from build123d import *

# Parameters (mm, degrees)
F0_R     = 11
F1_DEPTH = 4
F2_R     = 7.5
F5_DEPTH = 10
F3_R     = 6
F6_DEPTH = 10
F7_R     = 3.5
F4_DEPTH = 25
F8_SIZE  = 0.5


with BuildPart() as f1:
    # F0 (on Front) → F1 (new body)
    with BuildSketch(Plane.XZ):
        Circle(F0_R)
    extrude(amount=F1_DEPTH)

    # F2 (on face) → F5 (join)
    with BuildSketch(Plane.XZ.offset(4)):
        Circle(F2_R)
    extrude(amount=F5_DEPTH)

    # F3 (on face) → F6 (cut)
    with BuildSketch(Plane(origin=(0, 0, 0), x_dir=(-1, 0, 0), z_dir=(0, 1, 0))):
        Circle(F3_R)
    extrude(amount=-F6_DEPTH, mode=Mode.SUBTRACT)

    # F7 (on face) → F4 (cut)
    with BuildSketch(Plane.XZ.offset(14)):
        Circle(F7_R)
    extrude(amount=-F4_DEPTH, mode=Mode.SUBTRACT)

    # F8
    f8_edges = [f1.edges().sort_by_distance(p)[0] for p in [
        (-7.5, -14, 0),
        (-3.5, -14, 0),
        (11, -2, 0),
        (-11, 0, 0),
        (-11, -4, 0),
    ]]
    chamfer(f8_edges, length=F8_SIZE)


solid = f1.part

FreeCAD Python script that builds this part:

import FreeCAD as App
import Part
import Sketcher

V = App.Vector


def edges_at(feature, points):
    """Names of the edges that pass closest to the given points."""
    edges = feature.Shape.Edges
    near = lambda p: min(range(len(edges)), key=lambda i: edges[i].distToShape(Part.Vertex(*p))[0])
    return sorted({f"Edge{near(p) + 1}" for p in points})

doc = App.newDocument("Part")
body = doc.addObject("PartDesign::Body", "Body")

sketch1 = body.newObject("Sketcher::SketchObject", "Sketch")
sketch1.AttachmentSupport = (doc.getObject("XZ_Plane"), [""])
sketch1.MapMode = "FlatFace"
sketch1.addGeometry(Part.Circle(V(0, 0, 0), V(0, 0, 1), 11), False)
sketch1.addConstraint([
    Sketcher.Constraint("Coincident", 0, 3, -1, 1),
    Sketcher.Constraint("Diameter", 0, 22.0),
])
pad1 = body.newObject("PartDesign::Pad", "Pad")
pad1.Profile = sketch1
pad1.Length = 4

sketch2 = body.newObject("Sketcher::SketchObject", "Sketch001")
sketch2.AttachmentSupport = (doc.getObject("XZ_Plane"), [""])
sketch2.MapMode = "FlatFace"
sketch2.AttachmentOffset = App.Placement(V(0, 0, 4), App.Rotation())
sketch2.addGeometry(Part.Circle(V(0, 0, 0), V(0, 0, 1), 8), False)
sketch2.addConstraint([
    Sketcher.Constraint("Coincident", 0, 3, -1, 1),
    Sketcher.Constraint("Diameter", 0, 15.0),
])
pad2 = body.newObject("PartDesign::Pad", "Pad001")
pad2.Profile = sketch2
pad2.Length = 10

sketch3 = body.newObject("Sketcher::SketchObject", "Sketch002")
sketch3.AttachmentSupport = (doc.getObject("XZ_Plane"), [""])
sketch3.MapMode = "FlatFace"
sketch3.addGeometry(Part.Circle(V(0, 0, 0), V(0, 0, 1), 6), False)
sketch3.addConstraint([
    Sketcher.Constraint("Coincident", 0, 3, -1, 1),
    Sketcher.Constraint("Diameter", 0, 12.0),
])
pocket1 = body.newObject("PartDesign::Pocket", "Pocket")
pocket1.Profile = sketch3
pocket1.Length = 10
pocket1.Reversed = True

sketch4 = body.newObject("Sketcher::SketchObject", "Sketch003")
sketch4.AttachmentSupport = (doc.getObject("XZ_Plane"), [""])
sketch4.MapMode = "FlatFace"
sketch4.AttachmentOffset = App.Placement(V(0, 0, 14), App.Rotation())
sketch4.addGeometry(Part.Circle(V(0, 0, 0), V(0, 0, 1), 3.5), False)
sketch4.addConstraint([
    Sketcher.Constraint("Coincident", 0, 3, -1, 1),
    Sketcher.Constraint("Diameter", 0, 7.0),
])
pocket2 = body.newObject("PartDesign::Pocket", "Pocket001")
pocket2.Profile = sketch4
pocket2.Length = 25
doc.recompute()

chamfer = body.newObject("PartDesign::Chamfer", "Chamfer")
chamfer.Base = (pocket2, edges_at(pocket2, [
    (-7.5, -14, 0),
    (-3.5, -14, 0),
    (11, -2, 0),
    (-11, 0, 0),
    (-11, -4, 0),
]))
chamfer.Size = 0.5

doc.recompute()
